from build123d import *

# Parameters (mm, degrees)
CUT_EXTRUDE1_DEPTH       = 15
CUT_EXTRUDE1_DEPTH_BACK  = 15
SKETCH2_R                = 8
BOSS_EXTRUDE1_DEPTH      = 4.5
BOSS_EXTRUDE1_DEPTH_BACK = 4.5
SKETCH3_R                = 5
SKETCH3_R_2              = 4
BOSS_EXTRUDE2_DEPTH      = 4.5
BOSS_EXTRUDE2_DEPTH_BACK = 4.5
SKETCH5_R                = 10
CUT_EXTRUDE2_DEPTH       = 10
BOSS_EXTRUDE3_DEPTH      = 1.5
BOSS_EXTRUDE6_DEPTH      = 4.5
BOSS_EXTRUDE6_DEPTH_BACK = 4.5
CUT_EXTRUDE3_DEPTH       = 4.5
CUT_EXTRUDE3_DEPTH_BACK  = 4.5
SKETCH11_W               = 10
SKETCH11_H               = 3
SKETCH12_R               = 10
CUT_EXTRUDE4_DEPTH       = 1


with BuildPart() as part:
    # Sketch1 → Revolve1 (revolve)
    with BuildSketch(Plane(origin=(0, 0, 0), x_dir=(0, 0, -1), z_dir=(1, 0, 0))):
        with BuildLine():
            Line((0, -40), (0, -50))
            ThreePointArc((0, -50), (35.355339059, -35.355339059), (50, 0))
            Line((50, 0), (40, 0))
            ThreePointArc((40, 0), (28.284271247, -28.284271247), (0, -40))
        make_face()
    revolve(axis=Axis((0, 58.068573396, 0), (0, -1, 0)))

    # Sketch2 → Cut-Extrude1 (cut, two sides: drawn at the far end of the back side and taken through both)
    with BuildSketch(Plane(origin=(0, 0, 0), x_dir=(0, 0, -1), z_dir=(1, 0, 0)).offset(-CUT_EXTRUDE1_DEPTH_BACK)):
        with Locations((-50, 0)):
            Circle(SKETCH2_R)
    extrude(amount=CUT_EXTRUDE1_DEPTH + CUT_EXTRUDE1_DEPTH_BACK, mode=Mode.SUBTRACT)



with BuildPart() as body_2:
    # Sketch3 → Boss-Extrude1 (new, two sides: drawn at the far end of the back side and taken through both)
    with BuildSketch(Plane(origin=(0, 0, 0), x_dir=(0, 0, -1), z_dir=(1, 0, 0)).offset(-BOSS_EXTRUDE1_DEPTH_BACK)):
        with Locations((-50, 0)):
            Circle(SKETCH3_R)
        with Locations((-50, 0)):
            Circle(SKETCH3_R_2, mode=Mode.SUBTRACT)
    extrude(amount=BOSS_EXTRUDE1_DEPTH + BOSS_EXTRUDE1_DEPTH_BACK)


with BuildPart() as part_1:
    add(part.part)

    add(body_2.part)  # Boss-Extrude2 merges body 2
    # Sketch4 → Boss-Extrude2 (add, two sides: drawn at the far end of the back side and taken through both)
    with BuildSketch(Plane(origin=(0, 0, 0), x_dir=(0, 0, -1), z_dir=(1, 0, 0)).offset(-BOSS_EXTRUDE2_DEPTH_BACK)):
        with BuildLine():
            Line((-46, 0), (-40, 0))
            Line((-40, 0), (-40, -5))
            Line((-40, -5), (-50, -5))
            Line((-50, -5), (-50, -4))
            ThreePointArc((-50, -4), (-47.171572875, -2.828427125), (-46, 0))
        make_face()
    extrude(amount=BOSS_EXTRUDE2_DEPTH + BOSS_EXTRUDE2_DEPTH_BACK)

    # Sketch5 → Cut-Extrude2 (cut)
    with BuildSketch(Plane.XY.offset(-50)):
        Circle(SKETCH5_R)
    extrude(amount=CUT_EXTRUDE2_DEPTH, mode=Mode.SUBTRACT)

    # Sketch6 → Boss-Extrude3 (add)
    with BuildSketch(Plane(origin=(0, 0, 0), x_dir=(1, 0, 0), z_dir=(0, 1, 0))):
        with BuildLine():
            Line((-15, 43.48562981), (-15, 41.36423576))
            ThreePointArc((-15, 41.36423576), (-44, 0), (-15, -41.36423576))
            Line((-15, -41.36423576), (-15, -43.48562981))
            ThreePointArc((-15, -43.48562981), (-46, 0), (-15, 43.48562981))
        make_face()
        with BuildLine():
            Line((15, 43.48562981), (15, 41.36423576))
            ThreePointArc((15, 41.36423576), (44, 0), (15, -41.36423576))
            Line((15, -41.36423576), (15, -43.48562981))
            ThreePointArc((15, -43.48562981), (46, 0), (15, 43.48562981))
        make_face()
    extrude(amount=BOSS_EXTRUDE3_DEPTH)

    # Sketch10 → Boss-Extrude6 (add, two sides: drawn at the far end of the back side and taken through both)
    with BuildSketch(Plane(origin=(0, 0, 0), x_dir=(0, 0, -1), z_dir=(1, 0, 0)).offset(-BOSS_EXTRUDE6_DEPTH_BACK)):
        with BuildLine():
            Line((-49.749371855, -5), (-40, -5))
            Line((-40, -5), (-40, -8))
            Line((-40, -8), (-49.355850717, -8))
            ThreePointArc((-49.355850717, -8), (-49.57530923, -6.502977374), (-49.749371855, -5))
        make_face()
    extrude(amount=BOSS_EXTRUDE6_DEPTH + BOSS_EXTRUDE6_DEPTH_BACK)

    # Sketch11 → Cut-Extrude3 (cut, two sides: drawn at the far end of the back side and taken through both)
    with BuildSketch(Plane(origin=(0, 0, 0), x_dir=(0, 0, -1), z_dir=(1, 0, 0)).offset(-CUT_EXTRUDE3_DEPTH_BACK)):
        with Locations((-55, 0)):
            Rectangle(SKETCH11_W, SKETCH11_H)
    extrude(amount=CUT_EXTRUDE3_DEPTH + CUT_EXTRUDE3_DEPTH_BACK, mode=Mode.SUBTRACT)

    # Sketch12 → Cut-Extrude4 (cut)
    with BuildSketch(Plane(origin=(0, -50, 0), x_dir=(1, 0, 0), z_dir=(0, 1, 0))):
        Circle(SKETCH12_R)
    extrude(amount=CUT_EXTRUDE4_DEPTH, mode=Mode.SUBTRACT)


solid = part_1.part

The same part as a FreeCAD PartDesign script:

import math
import FreeCAD as App
import Part
import Sketcher


def add_polygon(sketch, points):
    """Adds a closed chain of lines whose ends are joined by coincident constraints."""
    first, n = sketch.GeometryCount, len(points)
    for a, b in zip(points, points[1:] + points[:1]):
        sketch.addGeometry(Part.LineSegment(App.Vector(*a, 0), App.Vector(*b, 0)), False)
    for i in range(n):
        sketch.addConstraint(Sketcher.Constraint("Coincident", first + i, 2, first + (i + 1) % n, 1))

doc = App.newDocument("Part")
params = doc.addObject("Spreadsheet::Sheet", "Params")
for row, (alias, value) in enumerate([
    ("sketch1_radius", "50 mm"),
    ("sketch1_radius2", "40 mm"),
    ("revolution_angle", "360 deg"),
    ("sketch2_diameter", "16 mm"),
    ("pocket1_length", "15 mm"),
    ("pocket1_length2", "15 mm"),
    ("sketch3_diameter", "10 mm"),
    ("sketch3_diameter2", "8 mm"),
    ("pad1_length", "4.5 mm"),
    ("pad1_length2", "4.5 mm"),
    ("sketch4_radius", "4 mm"),
    ("sketch4_width", "1 mm"),
    ("sketch4_height", "6 mm"),
    ("sketch4_height2", "10 mm"),
    ("pad2_length", "4.5 mm"),
    ("pad2_length2", "4.5 mm"),
    ("sketch5_diameter", "20 mm"),
    ("pocket2_length", "10 mm"),
    ("sketch6_radius", "46 mm"),
    ("sketch6_radius2", "44 mm"),
    ("pad3_length", "1.5 mm"),
    ("sketch7_radius", "50 mm"),
    ("sketch7_width", "3 mm"),
    ("pad4_length", "4.5 mm"),
    ("pad4_length2", "4.5 mm"),
    ("sketch8_width", "3 mm"),
    ("sketch8_height", "10 mm"),
    ("sketch9_diameter", "20 mm"),
    ("pocket4_length", "1 mm"),
], start=1):
    params.set(f"A{row}", alias)
    params.set(f"B{row}", "=" + value)
    params.setAlias(f"B{row}", alias)

body = doc.addObject("PartDesign::Body", "Body")

sketch1 = body.newObject("Sketcher::SketchObject", "Sketch")
sketch1.AttachmentSupport = (doc.getObject("YZ_Plane"), [""])
sketch1.MapMode = "FlatFace"
sketch1.addGeometry([
    Part.LineSegment(App.Vector(-40, 0, 0), App.Vector(-50, 0, 0)),
    Part.ArcOfCircle(Part.Circle(App.Vector(0, 0, 0), App.Vector(0, 0, 1), 50), math.radians(-180), math.radians(-90)),
    Part.LineSegment(App.Vector(0, -50, 0), App.Vector(0, -40, 0)),
    Part.ArcOfCircle(Part.Circle(App.Vector(0, 0, 0), App.Vector(0, 0, 1), 40), math.radians(-180), math.radians(-90)),
], False)
sketch1.addConstraint([
    Sketcher.Constraint("Coincident", 0, 2, 1, 1),
    Sketcher.Constraint("Coincident", 1, 2, 2, 1),
    Sketcher.Constraint("Coincident", 2, 2, 3, 2),
    Sketcher.Constraint("Coincident", 3, 1, 0, 1),
    Sketcher.Constraint("Horizontal", 0),
    Sketcher.Constraint("Vertical", 2),
    Sketcher.Constraint("Coincident", 1, 3, -1, 1),
    Sketcher.Constraint("Coincident", 3, 3, -1, 1),
    Sketcher.Constraint("PointOnObject", 0, 2, -1),
    Sketcher.Constraint("PointOnObject", 1, 2, -2),
    Sketcher.Constraint("Radius", 1, 50.0),
    Sketcher.Constraint("Radius", 3, 40.0),
])
sketch1.setExpression("Constraints[10]", "Params.sketch1_radius")
sketch1.setExpression("Constraints[11]", "Params.sketch1_radius2")
revolution = body.newObject("PartDesign::Revolution", "Revolution")
revolution.Profile = sketch1
revolution.ReferenceAxis = (sketch1, ["H_Axis"])
revolution.setExpression("Angle", "Params.revolution_angle")

sketch2 = body.newObject("Sketcher::SketchObject", "Sketch001")
sketch2.AttachmentSupport = (doc.getObject("YZ_Plane"), [""])
sketch2.MapMode = "FlatFace"
sketch2.addGeometry(Part.Circle(App.Vector(0, 50, 0), App.Vector(0, 0, 1), 8), False)
sketch2.addConstraint([
    Sketcher.Constraint("PointOnObject", 0, 3, -2),
    Sketcher.Constraint("Diameter", 0, 16.0),
    Sketcher.Constraint("DistanceY", -1, 1, 0, 3, 50.0),
])
sketch2.setExpression("Constraints[1]", "Params.sketch2_diameter")
pocket1 = body.newObject("PartDesign::Pocket", "Pocket")
pocket1.Profile = sketch2
pocket1.Type = "TwoLengths"
pocket1.setExpression("Length", "Params.pocket1_length")
pocket1.setExpression("Length2", "Params.pocket1_length2")
pocket1.Reversed = True
body2 = doc.addObject("PartDesign::Body", "Body001")

sketch3 = body2.newObject("Sketcher::SketchObject", "Sketch002")
sketch3.AttachmentSupport = (doc.getObject("YZ_Plane001"), [""])
sketch3.MapMode = "FlatFace"
sketch3.addGeometry([
    Part.Circle(App.Vector(0, 50, 0), App.Vector(0, 0, 1), 5),
    Part.Circle(App.Vector(0, 50, 0), App.Vector(0, 0, 1), 4),
], False)
sketch3.addConstraint([
    Sketcher.Constraint("Coincident", 1, 3, 0, 3),
    Sketcher.Constraint("PointOnObject", 0, 3, -2),
    Sketcher.Constraint("Diameter", 0, 10.0),
    Sketcher.Constraint("Diameter", 1, 8.0),
    Sketcher.Constraint("DistanceY", -1, 1, 0, 3, 50.0),
])
sketch3.setExpression("Constraints[2]", "Params.sketch3_diameter")
sketch3.setExpression("Constraints[3]", "Params.sketch3_diameter2")
pad1 = body2.newObject("PartDesign::Pad", "Pad")
pad1.Profile = sketch3
pad1.Type = "TwoLengths"
pad1.setExpression("Length", "Params.pad1_length")
pad1.setExpression("Length2", "Params.pad1_length2")
body.AllowCompound = True
doc.recompute()

boolean = body.newObject("PartDesign::Boolean", "Boolean")
boolean.Type = "Fuse"
boolean.addObjects([body2])

sketch4 = body.newObject("Sketcher::SketchObject", "Sketch003")
sketch4.AttachmentSupport = (doc.getObject("YZ_Plane"), [""])
sketch4.MapMode = "FlatFace"
sketch4.addGeometry([
    Part.LineSegment(App.Vector(0, 40, 0), App.Vector(0, 46, 0)),
    Part.ArcOfCircle(Part.Circle(App.Vector(0, 50, 0), App.Vector(0, 0, 1), 4), math.radians(180), math.radians(270)),
    Part.LineSegment(App.Vector(-4, 50, 0), App.Vector(-5, 50, 0)),
    Part.LineSegment(App.Vector(-5, 50, 0), App.Vector(-5, 40, 0)),
    Part.LineSegment(App.Vector(-5, 40, 0), App.Vector(0, 40, 0)),
], False)
sketch4.addConstraint([
    Sketcher.Constraint("Coincident", 0, 2, 1, 2),
    Sketcher.Constraint("Coincident", 1, 1, 2, 1),
    Sketcher.Constraint("Coincident", 2, 2, 3, 1),
    Sketcher.Constraint("Coincident", 3, 2, 4, 1),
    Sketcher.Constraint("Coincident", 4, 2, 0, 1),
    Sketcher.Constraint("Vertical", 0),
    Sketcher.Constraint("Horizontal", 2),
    Sketcher.Constraint("Vertical", 3),
    Sketcher.Constraint("Horizontal", 4),
    Sketcher.Constraint("PointOnObject", 1, 3, -2),
    Sketcher.Constraint("PointOnObject", 0, 2, -2),
    Sketcher.Constraint("Radius", 1, 4.0),
    Sketcher.Constraint("DistanceX", 2, 2, 2, 1, 1.0),
    Sketcher.Constraint("DistanceY", 0, 1, 0, 2, 6.0),
    Sketcher.Constraint("DistanceY", 3, 2, 3, 1, 10.0),
    Sketcher.Constraint("DistanceY", -1, 1, 1, 3, 50.0),
])
sketch4.setExpression("Constraints[11]", "Params.sketch4_radius")
sketch4.setExpression("Constraints[12]", "Params.sketch4_width")
sketch4.setExpression("Constraints[13]", "Params.sketch4_height")
sketch4.setExpression("Constraints[14]", "Params.sketch4_height2")
pad2 = body.newObject("PartDesign::Pad", "Pad001")
pad2.Profile = sketch4
pad2.Type = "TwoLengths"
pad2.setExpression("Length", "Params.pad2_length")
pad2.setExpression("Length2", "Params.pad2_length2")

sketch5 = body.newObject("Sketcher::SketchObject", "Sketch004")
sketch5.AttachmentSupport = (doc.getObject("XY_Plane"), [""])
sketch5.MapMode = "FlatFace"
sketch5.AttachmentOffset = App.Placement(App.Vector(0, 0, -50), App.Rotation())
sketch5.addGeometry(Part.Circle(App.Vector(0, 0, 0), App.Vector(0, 0, 1), 10), False)
sketch5.addConstraint([
    Sketcher.Constraint("Coincident", 0, 3, -1, 1),
    Sketcher.Constraint("Diameter", 0, 20.0),
])
sketch5.setExpression("Constraints[1]", "Params.sketch5_diameter")
pocket2 = body.newObject("PartDesign::Pocket", "Pocket001")
pocket2.Profile = sketch5
pocket2.setExpression("Length", "Params.pocket2_length")
pocket2.Reversed = True

sketch6 = body.newObject("Sketcher::SketchObject", "Sketch005")
sketch6.AttachmentSupport = (doc.getObject("XZ_Plane"), [""])
sketch6.MapMode = "FlatFace"
sketch6.addGeometry([
    Part.LineSegment(App.Vector(-15, -41.4, 0), App.Vector(-15, -43.5, 0)),
    Part.ArcOfCircle(Part.Circle(App.Vector(0, 0, 0), App.Vector(0, 0, 1), 46), math.radians(109), math.radians(251)),
    Part.LineSegment(App.Vector(-15, 43.5, 0), App.Vector(-15, 41.4, 0)),
    Part.ArcOfCircle(Part.Circle(App.Vector(0, 0, 0), App.Vector(0, 0, 1), 44), math.radians(110), math.radians(250)),
    Part.LineSegment(App.Vector(15, -43.5, 0), App.Vector(15, -41.4, 0)),
    Part.ArcOfCircle(Part.Circle(App.Vector(0, 0, 0), App.Vector(0, 0, 1), 44), math.radians(-70), math.radians(70)),
    Part.LineSegment(App.Vector(15, 41.4, 0), App.Vector(15, 43.5, 0)),
    Part.ArcOfCircle(Part.Circle(App.Vector(0, 0, 0), App.Vector(0, 0, 1), 46), math.radians(-71), math.radians(71)),
], False)
sketch6.addConstraint([
    Sketcher.Constraint("Coincident", 0, 2, 1, 2),
    Sketcher.Constraint("Coincident", 1, 1, 2, 1),
    Sketcher.Constraint("Coincident", 2, 2, 3, 1),
    Sketcher.Constraint("Coincident", 3, 2, 0, 1),
    Sketcher.Constraint("Coincident", 4, 2, 5, 1),
    Sketcher.Constraint("Coincident", 5, 2, 6, 1),
    Sketcher.Constraint("Coincident", 6, 2, 7, 2),
    Sketcher.Constraint("Coincident", 7, 1, 4, 1),
    Sketcher.Constraint("Vertical", 0),
    Sketcher.Constraint("Vertical", 2),
    Sketcher.Constraint("Vertical", 4),
    Sketcher.Constraint("Vertical", 6),
    Sketcher.Constraint("Coincident", 1, 3, -1, 1),
    Sketcher.Constraint("Coincident", 3, 3, -1, 1),
    Sketcher.Constraint("Coincident", 5, 3, -1, 1),
    Sketcher.Constraint("Coincident", 7, 3, -1, 1),
    Sketcher.Constraint("Equal", 3, 5),
    Sketcher.Constraint("Equal", 1, 7),
    Sketcher.Constraint("Horizontal", 3, 2, 4, 2),
    Sketcher.Constraint("Horizontal", 2, 2, 5, 2),
    Sketcher.Constraint("Vertical", 0, 2, 1, 1),
    Sketcher.Constraint("Radius", 1, 46.0),
    Sketcher.Constraint("Radius", 3, 44.0),
    Sketcher.Constraint("DistanceX", 0, 2, -1, 1, 15.0),
])
sketch6.setExpression("Constraints[21]", "Params.sketch6_radius")
sketch6.setExpression("Constraints[22]", "Params.sketch6_radius2")
pad3 = body.newObject("PartDesign::Pad", "Pad002")
pad3.Profile = sketch6
pad3.setExpression("Length", "Params.pad3_length")
pad3.Reversed = True

sketch7 = body.newObject("Sketcher::SketchObject", "Sketch006")
sketch7.AttachmentSupport = (doc.getObject("YZ_Plane"), [""])
sketch7.MapMode = "FlatFace"
sketch7.addGeometry([
    Part.LineSegment(App.Vector(-5, 40, 0), App.Vector(-5, 49.7, 0)),
    Part.ArcOfCircle(Part.Circle(App.Vector(0, 0, 0), App.Vector(0, 0, 1), 50), math.radians(95.74), math.radians(99.21)),
    Part.LineSegment(App.Vector(-8, 49.4, 0), App.Vector(-8, 40, 0)),
    Part.LineSegment(App.Vector(-8, 40, 0), App.Vector(-5, 40, 0)),
], False)
sketch7.addConstraint([
    Sketcher.Constraint("Coincident", 0, 2, 1, 1),
    Sketcher.Constraint("Coincident", 1, 2, 2, 1),
    Sketcher.Constraint("Coincident", 2, 2, 3, 1),
    Sketcher.Constraint("Coincident", 3, 2, 0, 1),
    Sketcher.Constraint("Vertical", 0),
    Sketcher.Constraint("Vertical", 2),
    Sketcher.Constraint("Horizontal", 3),
    Sketcher.Constraint("Coincident", 1, 3, -1, 1),
    Sketcher.Constraint("Radius", 1, 50.0),
    Sketcher.Constraint("DistanceX", 3, 1, 3, 2, 3.0),
    Sketcher.Constraint("DistanceX", 0, 2, -1, 1, 5.0),
    Sketcher.Constraint("DistanceY", -1, 1, 2, 2, 40.0),
])
sketch7.setExpression("Constraints[8]", "Params.sketch7_radius")
sketch7.setExpression("Constraints[9]", "Params.sketch7_width")
pad4 = body.newObject("PartDesign::Pad", "Pad003")
pad4.Profile = sketch7
pad4.Type = "TwoLengths"
pad4.setExpression("Length", "Params.pad4_length")
pad4.setExpression("Length2", "Params.pad4_length2")

sketch8 = body.newObject("Sketcher::SketchObject", "Sketch007")
sketch8.AttachmentSupport = (doc.getObject("YZ_Plane"), [""])
sketch8.MapMode = "FlatFace"
add_polygon(sketch8, [(1.5, 60), (-1.5, 60), (-1.5, 50), (1.5, 50)])
sketch8.addConstraint([
    Sketcher.Constraint("Horizontal", 0),
    Sketcher.Constraint("Vertical", 1),
    Sketcher.Constraint("Horizontal", 2),
    Sketcher.Constraint("Vertical", 3),
    Sketcher.Constraint("DistanceX", 0, 2, 0, 1, 3.0),
    Sketcher.Constraint("DistanceY", 1, 2, 1, 1, 10.0),
    Sketcher.Constraint("DistanceY", -1, 1, 0, 2, 60.0),
    Sketcher.Constraint("DistanceX", 0, 2, -1, 1, 1.5),
])
sketch8.setExpression("Constraints[8]", "Params.sketch8_width")
sketch8.setExpression("Constraints[9]", "Params.sketch8_height")
pocket3 = body.newObject("PartDesign::Pocket", "Pocket002")
pocket3.Profile = sketch8
pocket3.Type = "ThroughAll"
pocket3.Midplane = True

sketch9 = body.newObject("Sketcher::SketchObject", "Sketch008")
sketch9.AttachmentSupport = (doc.getObject("XZ_Plane"), [""])
sketch9.MapMode = "FlatFace"
sketch9.AttachmentOffset = App.Placement(App.Vector(0, 0, 50), App.Rotation())
sketch9.addGeometry(Part.Circle(App.Vector(0, 0, 0), App.Vector(0, 0, 1), 10), False)
sketch9.addConstraint([
    Sketcher.Constraint("Coincident", 0, 3, -1, 1),
    Sketcher.Constraint("Diameter", 0, 20.0),
])
sketch9.setExpression("Constraints[1]", "Params.sketch9_diameter")
pocket4 = body.newObject("PartDesign::Pocket", "Pocket003")
pocket4.Profile = sketch9
pocket4.setExpression("Length", "Params.pocket4_length")

doc.recompute()
